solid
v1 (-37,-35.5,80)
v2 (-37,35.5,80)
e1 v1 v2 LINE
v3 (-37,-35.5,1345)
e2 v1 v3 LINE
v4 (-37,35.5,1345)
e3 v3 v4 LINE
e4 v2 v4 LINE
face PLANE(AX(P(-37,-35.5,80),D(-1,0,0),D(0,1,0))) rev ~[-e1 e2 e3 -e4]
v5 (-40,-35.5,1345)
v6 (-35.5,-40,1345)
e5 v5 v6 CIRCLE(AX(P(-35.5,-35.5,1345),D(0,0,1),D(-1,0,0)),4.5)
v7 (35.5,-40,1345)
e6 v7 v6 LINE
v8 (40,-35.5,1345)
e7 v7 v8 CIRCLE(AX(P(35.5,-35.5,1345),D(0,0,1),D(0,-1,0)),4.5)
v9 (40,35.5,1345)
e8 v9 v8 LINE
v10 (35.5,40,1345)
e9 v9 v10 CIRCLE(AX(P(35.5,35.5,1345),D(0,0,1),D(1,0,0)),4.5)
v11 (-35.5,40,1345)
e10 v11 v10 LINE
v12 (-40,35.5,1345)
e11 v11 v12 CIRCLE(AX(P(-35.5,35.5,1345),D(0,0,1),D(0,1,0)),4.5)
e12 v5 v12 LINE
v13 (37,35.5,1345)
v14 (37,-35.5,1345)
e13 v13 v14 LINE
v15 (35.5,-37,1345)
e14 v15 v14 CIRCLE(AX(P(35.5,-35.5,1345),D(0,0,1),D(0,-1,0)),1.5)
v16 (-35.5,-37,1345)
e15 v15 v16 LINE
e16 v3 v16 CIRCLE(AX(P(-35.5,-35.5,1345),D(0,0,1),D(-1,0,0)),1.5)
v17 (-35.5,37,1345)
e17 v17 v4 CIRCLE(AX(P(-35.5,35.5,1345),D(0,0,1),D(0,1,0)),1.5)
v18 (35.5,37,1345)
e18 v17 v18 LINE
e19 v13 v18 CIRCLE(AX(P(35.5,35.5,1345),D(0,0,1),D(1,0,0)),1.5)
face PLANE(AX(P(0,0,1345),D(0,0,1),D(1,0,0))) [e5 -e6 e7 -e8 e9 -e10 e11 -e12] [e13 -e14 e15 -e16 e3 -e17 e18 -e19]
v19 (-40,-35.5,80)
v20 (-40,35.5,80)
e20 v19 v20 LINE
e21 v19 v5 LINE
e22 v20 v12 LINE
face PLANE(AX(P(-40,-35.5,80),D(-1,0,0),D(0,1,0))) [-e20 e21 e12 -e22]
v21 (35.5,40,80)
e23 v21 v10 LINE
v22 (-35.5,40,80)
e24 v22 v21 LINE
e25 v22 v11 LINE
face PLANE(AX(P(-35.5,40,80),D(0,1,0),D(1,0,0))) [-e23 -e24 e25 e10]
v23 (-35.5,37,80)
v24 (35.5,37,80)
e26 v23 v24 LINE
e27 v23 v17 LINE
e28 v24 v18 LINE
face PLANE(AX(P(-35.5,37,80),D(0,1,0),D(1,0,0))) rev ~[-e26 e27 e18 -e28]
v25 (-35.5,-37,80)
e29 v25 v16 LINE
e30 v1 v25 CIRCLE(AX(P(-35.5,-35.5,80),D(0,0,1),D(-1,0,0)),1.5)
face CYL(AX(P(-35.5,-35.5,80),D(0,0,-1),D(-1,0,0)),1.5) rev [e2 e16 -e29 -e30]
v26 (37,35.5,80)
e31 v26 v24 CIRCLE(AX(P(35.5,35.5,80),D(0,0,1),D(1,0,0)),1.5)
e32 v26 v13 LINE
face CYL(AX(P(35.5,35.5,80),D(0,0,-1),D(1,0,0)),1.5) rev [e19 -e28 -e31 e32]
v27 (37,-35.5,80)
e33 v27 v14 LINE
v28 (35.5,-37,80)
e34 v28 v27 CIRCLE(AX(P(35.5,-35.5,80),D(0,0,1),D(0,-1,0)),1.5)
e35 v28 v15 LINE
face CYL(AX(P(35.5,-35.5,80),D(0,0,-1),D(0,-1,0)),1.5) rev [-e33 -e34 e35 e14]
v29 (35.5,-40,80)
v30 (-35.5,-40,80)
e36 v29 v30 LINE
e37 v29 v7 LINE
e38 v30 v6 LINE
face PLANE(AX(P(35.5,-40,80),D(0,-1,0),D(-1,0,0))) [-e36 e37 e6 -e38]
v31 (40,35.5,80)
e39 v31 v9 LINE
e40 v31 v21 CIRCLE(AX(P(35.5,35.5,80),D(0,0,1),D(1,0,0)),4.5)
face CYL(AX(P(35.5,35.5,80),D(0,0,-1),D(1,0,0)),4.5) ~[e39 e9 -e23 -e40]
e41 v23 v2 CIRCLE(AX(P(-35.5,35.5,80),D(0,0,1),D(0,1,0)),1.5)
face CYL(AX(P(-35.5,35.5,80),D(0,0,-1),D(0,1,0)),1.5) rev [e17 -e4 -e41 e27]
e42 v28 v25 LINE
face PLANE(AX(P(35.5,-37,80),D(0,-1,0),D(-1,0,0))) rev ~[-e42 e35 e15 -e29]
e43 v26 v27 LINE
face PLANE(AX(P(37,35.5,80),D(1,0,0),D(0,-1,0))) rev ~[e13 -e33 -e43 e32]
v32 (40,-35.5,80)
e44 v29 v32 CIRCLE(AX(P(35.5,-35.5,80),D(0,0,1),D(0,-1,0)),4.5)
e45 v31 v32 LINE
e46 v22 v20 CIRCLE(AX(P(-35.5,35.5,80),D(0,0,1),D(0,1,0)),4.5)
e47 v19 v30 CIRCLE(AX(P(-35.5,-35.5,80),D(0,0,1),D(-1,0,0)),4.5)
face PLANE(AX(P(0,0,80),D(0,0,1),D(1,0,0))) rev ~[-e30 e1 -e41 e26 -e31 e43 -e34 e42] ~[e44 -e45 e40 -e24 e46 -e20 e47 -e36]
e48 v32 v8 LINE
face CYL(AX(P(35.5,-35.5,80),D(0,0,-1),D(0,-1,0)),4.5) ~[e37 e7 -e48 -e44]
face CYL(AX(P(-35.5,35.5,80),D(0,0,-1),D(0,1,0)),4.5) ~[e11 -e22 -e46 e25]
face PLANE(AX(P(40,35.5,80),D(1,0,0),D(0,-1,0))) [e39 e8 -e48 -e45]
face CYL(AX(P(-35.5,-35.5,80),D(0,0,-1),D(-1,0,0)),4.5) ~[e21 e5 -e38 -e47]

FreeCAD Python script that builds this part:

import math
import FreeCAD as App
import Part
import Sketcher
Q = App.Units.Quantity

doc = App.newDocument("Part")
body = doc.addObject("PartDesign::Body", "Body")

sketch1 = body.newObject("Sketcher::SketchObject", "Sketch")
sketch1.AttachmentSupport = (doc.getObject("XY_Plane"), [""])
sketch1.MapMode = "FlatFace"
sketch1.AttachmentOffset = App.Placement(App.Vector(0, 0, 80), App.Rotation())
sketch1.addGeometry([
    Part.LineSegment(App.Vector(-40, 35.5, 0), App.Vector(-40, -35.5, 0)),
    Part.ArcOfCircle(Part.Circle(App.Vector(-35.5, -35.5, 0), App.Vector(0, 0, 1), 4.5), math.radians(180), math.radians(270)),
    Part.LineSegment(App.Vector(-35.5, -40, 0), App.Vector(35.5, -40, 0)),
    Part.ArcOfCircle(Part.Circle(App.Vector(35.5, -35.5, 0), App.Vector(0, 0, 1), 4.5), math.radians(-90), math.radians(0)),
    Part.LineSegment(App.Vector(40, -35.5, 0), App.Vector(40, 35.5, 0)),
    Part.ArcOfCircle(Part.Circle(App.Vector(35.5, 35.5, 0), App.Vector(0, 0, 1), 4.5), math.radians(0), math.radians(90)),
    Part.LineSegment(App.Vector(35.5, 40, 0), App.Vector(-35.5, 40, 0)),
    Part.ArcOfCircle(Part.Circle(App.Vector(-35.5, 35.5, 0), App.Vector(0, 0, 1), 4.5), math.radians(90), math.radians(180)),
    Part.ArcOfCircle(Part.Circle(App.Vector(-35.5, 35.5, 0), App.Vector(0, 0, 1), 1.5), math.radians(90), math.radians(180)),
    Part.LineSegment(App.Vector(-35.5, 37, 0), App.Vector(35.5, 37, 0)),
    Part.ArcOfCircle(Part.Circle(App.Vector(35.5, 35.5, 0), App.Vector(0, 0, 1), 1.5), math.radians(0), math.radians(90)),
    Part.LineSegment(App.Vector(37, 35.5, 0), App.Vector(37, -35.5, 0)),
    Part.ArcOfCircle(Part.Circle(App.Vector(35.5, -35.5, 0), App.Vector(0, 0, 1), 1.5), math.radians(-90), math.radians(0)),
    Part.LineSegment(App.Vector(35.5, -37, 0), App.Vector(-35.5, -37, 0)),
    Part.ArcOfCircle(Part.Circle(App.Vector(-35.5, -35.5, 0), App.Vector(0, 0, 1), 1.5), math.radians(180), math.radians(270)),
    Part.LineSegment(App.Vector(-37, -35.5, 0), App.Vector(-37, 35.5, 0)),
], False)
sketch1.addConstraint([
    Sketcher.Constraint("Tangent", 0, 2, 1, 1),
    Sketcher.Constraint("Tangent", 1, 2, 2, 1),
    Sketcher.Constraint("Tangent", 2, 2, 3, 1),
    Sketcher.Constraint("Tangent", 3, 2, 4, 1),
    Sketcher.Constraint("Tangent", 4, 2, 5, 1),
    Sketcher.Constraint("Tangent", 5, 2, 6, 1),
    Sketcher.Constraint("Tangent", 6, 2, 7, 1),
    Sketcher.Constraint("Tangent", 7, 2, 0, 1),
    Sketcher.Constraint("Tangent", 8, 1, 9, 1),
    Sketcher.Constraint("Tangent", 9, 2, 10, 2),
    Sketcher.Constraint("Tangent", 10, 1, 11, 1),
    Sketcher.Constraint("Tangent", 11, 2, 12, 2),
    Sketcher.Constraint("Tangent", 12, 1, 13, 1),
    Sketcher.Constraint("Tangent", 13, 2, 14, 2),
    Sketcher.Constraint("Tangent", 14, 1, 15, 1),
    Sketcher.Constraint("Tangent", 15, 2, 8, 2),
    Sketcher.Constraint("Vertical", 0),
    Sketcher.Constraint("Horizontal", 2),
    Sketcher.Constraint("Vertical", 4),
    Sketcher.Constraint("Horizontal", 6),
    Sketcher.Constraint("Horizontal", 9),
    Sketcher.Constraint("Vertical", 11),
    Sketcher.Constraint("Horizontal", 13),
    Sketcher.Constraint("Vertical", 15),
    Sketcher.Constraint("Coincident", 8, 3, 7, 3),
    Sketcher.Constraint("Coincident", 10, 3, 5, 3),
    Sketcher.Constraint("Coincident", 12, 3, 3, 3),
    Sketcher.Constraint("Equal", 1, 3),
    Sketcher.Constraint("Equal", 3, 5),
    Sketcher.Constraint("Equal", 5, 7),
    Sketcher.Constraint("Equal", 12, 14),
    Sketcher.Constraint("Symmetric", 1, 3, 5, 3, -1, 1),
    Sketcher.Constraint("Equal", 13, 0),
    Sketcher.Constraint("Radius", 1, Q("4.5 mm")),
    Sketcher.Constraint("Radius", 8, Q("1.5 mm")),
    Sketcher.Constraint("DistanceX", 0, 2, -1, 1, Q("40 mm")),
])
pad1 = body.newObject("PartDesign::Pad", "Pad")
pad1.Profile = sketch1
pad1.Length = 1265

doc.recompute()
